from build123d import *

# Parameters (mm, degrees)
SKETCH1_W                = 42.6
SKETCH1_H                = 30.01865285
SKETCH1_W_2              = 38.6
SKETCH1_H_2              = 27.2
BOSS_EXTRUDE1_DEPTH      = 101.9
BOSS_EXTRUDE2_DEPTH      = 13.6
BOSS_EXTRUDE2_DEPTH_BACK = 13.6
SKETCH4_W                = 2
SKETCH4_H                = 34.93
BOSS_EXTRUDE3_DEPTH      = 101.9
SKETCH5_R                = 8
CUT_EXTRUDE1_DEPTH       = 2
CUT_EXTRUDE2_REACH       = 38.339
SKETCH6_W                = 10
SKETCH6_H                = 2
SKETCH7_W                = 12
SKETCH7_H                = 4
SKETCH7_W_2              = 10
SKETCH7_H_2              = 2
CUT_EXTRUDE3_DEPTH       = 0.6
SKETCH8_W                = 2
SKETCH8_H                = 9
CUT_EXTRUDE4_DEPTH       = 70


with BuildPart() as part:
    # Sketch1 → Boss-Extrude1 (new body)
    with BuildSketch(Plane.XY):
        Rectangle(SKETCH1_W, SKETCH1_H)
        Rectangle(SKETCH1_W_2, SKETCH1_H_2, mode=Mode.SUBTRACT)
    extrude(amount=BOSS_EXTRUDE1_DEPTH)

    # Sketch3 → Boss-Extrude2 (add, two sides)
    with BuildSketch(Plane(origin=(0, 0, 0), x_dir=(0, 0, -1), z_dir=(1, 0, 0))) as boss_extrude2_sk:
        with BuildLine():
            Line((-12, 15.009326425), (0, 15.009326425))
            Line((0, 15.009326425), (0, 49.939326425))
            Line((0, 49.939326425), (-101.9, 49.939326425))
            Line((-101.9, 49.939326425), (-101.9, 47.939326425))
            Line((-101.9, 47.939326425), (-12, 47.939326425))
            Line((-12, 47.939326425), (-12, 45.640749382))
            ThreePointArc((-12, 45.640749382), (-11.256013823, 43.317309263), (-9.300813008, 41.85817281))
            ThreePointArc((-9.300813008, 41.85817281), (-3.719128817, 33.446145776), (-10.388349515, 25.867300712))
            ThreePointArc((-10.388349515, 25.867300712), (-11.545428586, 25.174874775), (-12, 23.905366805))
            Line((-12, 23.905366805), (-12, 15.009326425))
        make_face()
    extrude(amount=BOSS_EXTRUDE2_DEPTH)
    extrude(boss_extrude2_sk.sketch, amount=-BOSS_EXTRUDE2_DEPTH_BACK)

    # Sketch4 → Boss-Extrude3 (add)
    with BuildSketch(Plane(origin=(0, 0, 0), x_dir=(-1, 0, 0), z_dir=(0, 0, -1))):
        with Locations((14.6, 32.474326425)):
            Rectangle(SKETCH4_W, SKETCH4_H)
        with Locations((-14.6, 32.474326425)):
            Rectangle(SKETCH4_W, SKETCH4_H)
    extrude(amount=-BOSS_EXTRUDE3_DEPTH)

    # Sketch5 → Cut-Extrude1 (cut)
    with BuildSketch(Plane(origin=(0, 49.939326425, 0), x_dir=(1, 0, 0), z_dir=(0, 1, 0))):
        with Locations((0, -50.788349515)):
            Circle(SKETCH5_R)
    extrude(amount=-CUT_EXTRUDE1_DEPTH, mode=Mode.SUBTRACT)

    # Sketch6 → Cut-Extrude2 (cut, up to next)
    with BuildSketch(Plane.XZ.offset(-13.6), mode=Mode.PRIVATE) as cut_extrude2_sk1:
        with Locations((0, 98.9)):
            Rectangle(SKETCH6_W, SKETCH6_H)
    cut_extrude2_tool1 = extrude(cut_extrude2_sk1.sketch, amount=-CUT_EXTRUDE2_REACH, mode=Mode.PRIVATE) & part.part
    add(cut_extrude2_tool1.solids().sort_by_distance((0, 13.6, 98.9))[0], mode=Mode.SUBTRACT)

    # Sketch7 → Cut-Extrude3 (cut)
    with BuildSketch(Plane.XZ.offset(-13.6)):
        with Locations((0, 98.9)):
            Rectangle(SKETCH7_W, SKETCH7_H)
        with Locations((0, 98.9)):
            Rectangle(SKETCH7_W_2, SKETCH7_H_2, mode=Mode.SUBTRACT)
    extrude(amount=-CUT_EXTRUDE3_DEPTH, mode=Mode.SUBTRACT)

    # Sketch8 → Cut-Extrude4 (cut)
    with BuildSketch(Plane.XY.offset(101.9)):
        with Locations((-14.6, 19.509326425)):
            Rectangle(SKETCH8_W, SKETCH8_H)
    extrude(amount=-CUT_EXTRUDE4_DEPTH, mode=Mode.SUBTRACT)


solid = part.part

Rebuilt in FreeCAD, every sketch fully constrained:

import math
import FreeCAD as App
import Part
import Sketcher
from FreeCAD import Vector


def add_polygon(sketch, points):
    """Adds a closed chain of lines whose ends are joined by coincident constraints."""
    first, n = sketch.GeometryCount, len(points)
    for a, b in zip(points, points[1:] + points[:1]):
        sketch.addGeometry(Part.LineSegment(App.Vector(*a, 0), App.Vector(*b, 0)), False)
    for i in range(n):
        sketch.addConstraint(Sketcher.Constraint("Coincident", first + i, 2, first + (i + 1) % n, 1))

doc = App.newDocument("Part")
body = doc.addObject("PartDesign::Body", "Body")

sketch1 = body.newObject("Sketcher::SketchObject", "Sketch")
sketch1.AttachmentSupport = (doc.getObject("XY_Plane"), [""])
sketch1.MapMode = "FlatFace"
add_polygon(sketch1, [(-21.3, 15.009326), (-21.3, -15.009326), (21.3, -15.009326), (21.3, 15.009326)])
add_polygon(sketch1, [(19.3, -13.6), (-19.3, -13.6), (-19.3, 13.6), (19.3, 13.6)])
sketch1.addConstraint(Sketcher.Constraint("Vertical", 0))
sketch1.addConstraint(Sketcher.Constraint("Horizontal", 1))
sketch1.addConstraint(Sketcher.Constraint("Vertical", 2))
sketch1.addConstraint(Sketcher.Constraint("Horizontal", 3))
sketch1.addConstraint(Sketcher.Constraint("Horizontal", 4))
sketch1.addConstraint(Sketcher.Constraint("Vertical", 5))
sketch1.addConstraint(Sketcher.Constraint("Horizontal", 6))
sketch1.addConstraint(Sketcher.Constraint("Vertical", 7))
sketch1.addConstraint(Sketcher.Constraint("Symmetric", 0, 2, 2, 2, -1, 1))
sketch1.addConstraint(Sketcher.Constraint("Symmetric", 4, 2, 6, 2, -1, 1))
sketch1.addConstraint(Sketcher.Constraint("DistanceX", 1, 1, 1, 2, 42.6))
sketch1.addConstraint(Sketcher.Constraint("DistanceX", 4, 2, 4, 1, 38.6))
sketch1.addConstraint(Sketcher.Constraint("DistanceY", 5, 1, 5, 2, 27.2))
sketch1.addConstraint(Sketcher.Constraint("DistanceY", 0, 2, 0, 1, 30.018653))
pad1 = body.newObject("PartDesign::Pad", "Pad")
pad1.Profile = sketch1
pad1.Length = 101.9

sketch2 = body.newObject("Sketcher::SketchObject", "Sketch001")
sketch2.AttachmentSupport = (doc.getObject("YZ_Plane"), [""])
sketch2.MapMode = "FlatFace"
sketch2.addGeometry(Part.LineSegment(Vector(15.009326, 12, 0), Vector(15.009326, 0, 0)), False)
sketch2.addGeometry(Part.LineSegment(Vector(15.009326, 0, 0), Vector(49.939326, 0, 0)), False)
sketch2.addGeometry(Part.LineSegment(Vector(49.939326, 0, 0), Vector(49.939326, 101.9, 0)), False)
sketch2.addGeometry(Part.LineSegment(Vector(49.939326, 101.9, 0), Vector(47.939326, 101.9, 0)), False)
sketch2.addGeometry(Part.LineSegment(Vector(47.939326, 101.9, 0), Vector(47.939326, 12, 0)), False)
sketch2.addGeometry(Part.LineSegment(Vector(47.939326, 12, 0), Vector(45.640749, 12, 0)), False)
sketch2.addGeometry(Part.ArcOfCircle(Part.Circle(Vector(45.640749, 8, 0), Vector(0, 0, 1), 4), math.radians(90), math.radians(161.022111)), False)
sketch2.addGeometry(Part.ArcOfCircle(Part.Circle(Vector(34.009326, 12, 0), Vector(0, 0, 1), 8.3), math.radians(-168.803481), math.radians(-18.977889)), False)
sketch2.addGeometry(Part.ArcOfCircle(Part.Circle(Vector(23.905367, 10, 0), Vector(0, 0, 1), 2), math.radians(11.196519), math.radians(90)), False)
sketch2.addGeometry(Part.LineSegment(Vector(23.905367, 12, 0), Vector(15.009326, 12, 0)), False)
sketch2.addConstraint(Sketcher.Constraint("Coincident", 0, 2, 1, 1))
sketch2.addConstraint(Sketcher.Constraint("Coincident", 1, 2, 2, 1))
sketch2.addConstraint(Sketcher.Constraint("Coincident", 2, 2, 3, 1))
sketch2.addConstraint(Sketcher.Constraint("Coincident", 3, 2, 4, 1))
sketch2.addConstraint(Sketcher.Constraint("Coincident", 4, 2, 5, 1))
sketch2.addConstraint(Sketcher.Constraint("Tangent", 5, 2, 6, 1))
sketch2.addConstraint(Sketcher.Constraint("Tangent", 6, 2, 7, 2))
sketch2.addConstraint(Sketcher.Constraint("Tangent", 7, 1, 8, 1))
sketch2.addConstraint(Sketcher.Constraint("Tangent", 8, 2, 9, 1))
sketch2.addConstraint(Sketcher.Constraint("Coincident", 9, 2, 0, 1))
sketch2.addConstraint(Sketcher.Constraint("Vertical", 0))
sketch2.addConstraint(Sketcher.Constraint("Horizontal", 1))
sketch2.addConstraint(Sketcher.Constraint("Vertical", 2))
sketch2.addConstraint(Sketcher.Constraint("Horizontal", 3))
sketch2.addConstraint(Sketcher.Constraint("Vertical", 4))
sketch2.addConstraint(Sketcher.Constraint("Horizontal", 5))
sketch2.addConstraint(Sketcher.Constraint("Horizontal", 9))
sketch2.addConstraint(Sketcher.Constraint("PointOnObject", 0, 2, -1))
sketch2.addConstraint(Sketcher.Constraint("Horizontal", 7, 3, 4, 2))
sketch2.addConstraint(Sketcher.Constraint("Horizontal", 5, 2, 8, 2))
sketch2.addConstraint(Sketcher.Constraint("Radius", 6, 4.0))
sketch2.addConstraint(Sketcher.Constraint("Radius", 8, 2.0))
sketch2.addConstraint(Sketcher.Constraint("Radius", 7, 8.3))
sketch2.addConstraint(Sketcher.Constraint("DistanceX", 3, 2, 3, 1, 2.0))
sketch2.addConstraint(Sketcher.Constraint("DistanceY", 0, 2, 0, 1, 12.0))
sketch2.addConstraint(Sketcher.Constraint("DistanceY", 2, 1, 2, 2, 101.9))
sketch2.addConstraint(Sketcher.Constraint("DistanceX", 0, 2, 7, 3, 19.0))
sketch2.addConstraint(Sketcher.Constraint("DistanceX", 1, 1, 1, 2, 34.93))
sketch2.addConstraint(Sketcher.Constraint("DistanceX", -1, 1, 7, 1, 25.867301))
pad2 = body.newObject("PartDesign::Pad", "Pad001")
pad2.Profile = sketch2
pad2.Type = "TwoLengths"
pad2.Length = 13.6
pad2.Length2 = 13.6

sketch3 = body.newObject("Sketcher::SketchObject", "Sketch002")
sketch3.AttachmentSupport = (doc.getObject("XY_Plane"), [""])
sketch3.MapMode = "FlatFace"
add_polygon(sketch3, [(-13.6, 49.939326), (-13.6, 15.009326), (-15.6, 15.009326), (-15.6, 49.939326)])
add_polygon(sketch3, [(15.6, 49.939326), (15.6, 15.009326), (13.6, 15.009326), (13.6, 49.939326)])
sketch3.addConstraint(Sketcher.Constraint("Vertical", 0))
sketch3.addConstraint(Sketcher.Constraint("Horizontal", 1))
sketch3.addConstraint(Sketcher.Constraint("Vertical", 2))
sketch3.addConstraint(Sketcher.Constraint("Horizontal", 3))
sketch3.addConstraint(Sketcher.Constraint("Vertical", 4))
sketch3.addConstraint(Sketcher.Constraint("Horizontal", 5))
sketch3.addConstraint(Sketcher.Constraint("Vertical", 6))
sketch3.addConstraint(Sketcher.Constraint("Horizontal", 7))
sketch3.addConstraint(Sketcher.Constraint("Symmetric", 1, 2, 4, 2, -2))
sketch3.addConstraint(Sketcher.Constraint("Symmetric", 3, 2, 6, 2, -2))
sketch3.addConstraint(Sketcher.Constraint("DistanceX", 1, 2, 1, 1, 2.0))
sketch3.addConstraint(Sketcher.Constraint("DistanceY", 0, 2, 0, 1, 34.93))
sketch3.addConstraint(Sketcher.Constraint("DistanceX", 0, 2, -1, 1, 13.6))
sketch3.addConstraint(Sketcher.Constraint("DistanceY", -1, 1, 0, 2, 15.009326))
pad3 = body.newObject("PartDesign::Pad", "Pad002")
pad3.Profile = sketch3
pad3.Length = 101.9

sketch4 = body.newObject("Sketcher::SketchObject", "Sketch003")
sketch4.AttachmentSupport = (doc.getObject("XZ_Plane"), [""])
sketch4.MapMode = "FlatFace"
sketch4.AttachmentOffset = App.Placement(Vector(0, 0, -49.939326), App.Rotation())
sketch4.addGeometry(Part.Circle(Vector(0, 50.78835, 0), Vector(0, 0, 1), 8), False)
sketch4.addConstraint(Sketcher.Constraint("PointOnObject", 0, 3, -2))
sketch4.addConstraint(Sketcher.Constraint("Diameter", 0, 16.0))
sketch4.addConstraint(Sketcher.Constraint("DistanceY", -1, 1, 0, 3, 50.78835))
pocket1 = body.newObject("PartDesign::Pocket", "Pocket")
pocket1.Profile = sketch4
pocket1.Length = 2
pocket1.Reversed = True

sketch5 = body.newObject("Sketcher::SketchObject", "Sketch004")
sketch5.AttachmentSupport = (doc.getObject("XZ_Plane"), [""])
sketch5.MapMode = "FlatFace"
sketch5.AttachmentOffset = App.Placement(Vector(0, 0, -13.6), App.Rotation())
add_polygon(sketch5, [(-5, 99.9), (-5, 97.9), (5, 97.9), (5, 99.9)])
sketch5.addConstraint(Sketcher.Constraint("Vertical", 0))
sketch5.addConstraint(Sketcher.Constraint("Horizontal", 1))
sketch5.addConstraint(Sketcher.Constraint("Vertical", 2))
sketch5.addConstraint(Sketcher.Constraint("Horizontal", 3))
sketch5.addConstraint(Sketcher.Constraint("DistanceX", 1, 1, 1, 2, 10.0))
sketch5.addConstraint(Sketcher.Constraint("DistanceY", 0, 2, 0, 1, 2.0))
sketch5.addConstraint(Sketcher.Constraint("DistanceX", 0, 2, -1, 1, 5.0))
sketch5.addConstraint(Sketcher.Constraint("DistanceY", -1, 1, 0, 2, 97.9))
pocket2 = body.newObject("PartDesign::Pocket", "Pocket001")
pocket2.Profile = sketch5
pocket2.Type = "UpToFirst"

sketch6 = body.newObject("Sketcher::SketchObject", "Sketch005")
sketch6.AttachmentSupport = (doc.getObject("XZ_Plane"), [""])
sketch6.MapMode = "FlatFace"
sketch6.AttachmentOffset = App.Placement(Vector(0, 0, -13.6), App.Rotation())
add_polygon(sketch6, [(-6, 100.9), (-6, 96.9), (6, 96.9), (6, 100.9)])
add_polygon(sketch6, [(5, 97.9), (-5, 97.9), (-5, 99.9), (5, 99.9)])
sketch6.addConstraint(Sketcher.Constraint("Vertical", 0))
sketch6.addConstraint(Sketcher.Constraint("Horizontal", 1))
sketch6.addConstraint(Sketcher.Constraint("Vertical", 2))
sketch6.addConstraint(Sketcher.Constraint("Horizontal", 3))
sketch6.addConstraint(Sketcher.Constraint("Horizontal", 4))
sketch6.addConstraint(Sketcher.Constraint("Vertical", 5))
sketch6.addConstraint(Sketcher.Constraint("Horizontal", 6))
sketch6.addConstraint(Sketcher.Constraint("Vertical", 7))
sketch6.addConstraint(Sketcher.Constraint("DistanceX", 1, 1, 1, 2, 12.0))
sketch6.addConstraint(Sketcher.Constraint("DistanceX", 4, 2, 4, 1, 10.0))
sketch6.addConstraint(Sketcher.Constraint("DistanceY", 0, 2, 0, 1, 4.0))
sketch6.addConstraint(Sketcher.Constraint("DistanceY", 5, 1, 5, 2, 2.0))
sketch6.addConstraint(Sketcher.Constraint("DistanceX", 0, 2, -1, 1, 6.0))
sketch6.addConstraint(Sketcher.Constraint("DistanceX", 4, 2, -1, 1, 5.0))
sketch6.addConstraint(Sketcher.Constraint("DistanceY", 0, 2, 4, 2, 1.0))
sketch6.addConstraint(Sketcher.Constraint("DistanceY", -1, 1, 0, 2, 96.9))
pocket3 = body.newObject("PartDesign::Pocket", "Pocket002")
pocket3.Profile = sketch6
pocket3.Length = 0.6

sketch7 = body.newObject("Sketcher::SketchObject", "Sketch006")
sketch7.AttachmentSupport = (doc.getObject("XY_Plane"), [""])
sketch7.MapMode = "FlatFace"
sketch7.AttachmentOffset = App.Placement(Vector(0, 0, 101.9), App.Rotation())
add_polygon(sketch7, [(-15.6, 24.009326), (-15.6, 15.009326), (-13.6, 15.009326), (-13.6, 24.009326)])
sketch7.addConstraint(Sketcher.Constraint("Vertical", 0))
sketch7.addConstraint(Sketcher.Constraint("Horizontal", 1))
sketch7.addConstraint(Sketcher.Constraint("Vertical", 2))
sketch7.addConstraint(Sketcher.Constraint("Horizontal", 3))
sketch7.addConstraint(Sketcher.Constraint("DistanceX", 1, 1, 1, 2, 2.0))
sketch7.addConstraint(Sketcher.Constraint("DistanceY", 0, 2, 0, 1, 9.0))
sketch7.addConstraint(Sketcher.Constraint("DistanceX", 0, 2, -1, 1, 15.6))
sketch7.addConstraint(Sketcher.Constraint("DistanceY", -1, 1, 0, 2, 15.009326))
pocket4 = body.newObject("PartDesign::Pocket", "Pocket003")
pocket4.Profile = sketch7
pocket4.Length = 70

doc.recompute()
